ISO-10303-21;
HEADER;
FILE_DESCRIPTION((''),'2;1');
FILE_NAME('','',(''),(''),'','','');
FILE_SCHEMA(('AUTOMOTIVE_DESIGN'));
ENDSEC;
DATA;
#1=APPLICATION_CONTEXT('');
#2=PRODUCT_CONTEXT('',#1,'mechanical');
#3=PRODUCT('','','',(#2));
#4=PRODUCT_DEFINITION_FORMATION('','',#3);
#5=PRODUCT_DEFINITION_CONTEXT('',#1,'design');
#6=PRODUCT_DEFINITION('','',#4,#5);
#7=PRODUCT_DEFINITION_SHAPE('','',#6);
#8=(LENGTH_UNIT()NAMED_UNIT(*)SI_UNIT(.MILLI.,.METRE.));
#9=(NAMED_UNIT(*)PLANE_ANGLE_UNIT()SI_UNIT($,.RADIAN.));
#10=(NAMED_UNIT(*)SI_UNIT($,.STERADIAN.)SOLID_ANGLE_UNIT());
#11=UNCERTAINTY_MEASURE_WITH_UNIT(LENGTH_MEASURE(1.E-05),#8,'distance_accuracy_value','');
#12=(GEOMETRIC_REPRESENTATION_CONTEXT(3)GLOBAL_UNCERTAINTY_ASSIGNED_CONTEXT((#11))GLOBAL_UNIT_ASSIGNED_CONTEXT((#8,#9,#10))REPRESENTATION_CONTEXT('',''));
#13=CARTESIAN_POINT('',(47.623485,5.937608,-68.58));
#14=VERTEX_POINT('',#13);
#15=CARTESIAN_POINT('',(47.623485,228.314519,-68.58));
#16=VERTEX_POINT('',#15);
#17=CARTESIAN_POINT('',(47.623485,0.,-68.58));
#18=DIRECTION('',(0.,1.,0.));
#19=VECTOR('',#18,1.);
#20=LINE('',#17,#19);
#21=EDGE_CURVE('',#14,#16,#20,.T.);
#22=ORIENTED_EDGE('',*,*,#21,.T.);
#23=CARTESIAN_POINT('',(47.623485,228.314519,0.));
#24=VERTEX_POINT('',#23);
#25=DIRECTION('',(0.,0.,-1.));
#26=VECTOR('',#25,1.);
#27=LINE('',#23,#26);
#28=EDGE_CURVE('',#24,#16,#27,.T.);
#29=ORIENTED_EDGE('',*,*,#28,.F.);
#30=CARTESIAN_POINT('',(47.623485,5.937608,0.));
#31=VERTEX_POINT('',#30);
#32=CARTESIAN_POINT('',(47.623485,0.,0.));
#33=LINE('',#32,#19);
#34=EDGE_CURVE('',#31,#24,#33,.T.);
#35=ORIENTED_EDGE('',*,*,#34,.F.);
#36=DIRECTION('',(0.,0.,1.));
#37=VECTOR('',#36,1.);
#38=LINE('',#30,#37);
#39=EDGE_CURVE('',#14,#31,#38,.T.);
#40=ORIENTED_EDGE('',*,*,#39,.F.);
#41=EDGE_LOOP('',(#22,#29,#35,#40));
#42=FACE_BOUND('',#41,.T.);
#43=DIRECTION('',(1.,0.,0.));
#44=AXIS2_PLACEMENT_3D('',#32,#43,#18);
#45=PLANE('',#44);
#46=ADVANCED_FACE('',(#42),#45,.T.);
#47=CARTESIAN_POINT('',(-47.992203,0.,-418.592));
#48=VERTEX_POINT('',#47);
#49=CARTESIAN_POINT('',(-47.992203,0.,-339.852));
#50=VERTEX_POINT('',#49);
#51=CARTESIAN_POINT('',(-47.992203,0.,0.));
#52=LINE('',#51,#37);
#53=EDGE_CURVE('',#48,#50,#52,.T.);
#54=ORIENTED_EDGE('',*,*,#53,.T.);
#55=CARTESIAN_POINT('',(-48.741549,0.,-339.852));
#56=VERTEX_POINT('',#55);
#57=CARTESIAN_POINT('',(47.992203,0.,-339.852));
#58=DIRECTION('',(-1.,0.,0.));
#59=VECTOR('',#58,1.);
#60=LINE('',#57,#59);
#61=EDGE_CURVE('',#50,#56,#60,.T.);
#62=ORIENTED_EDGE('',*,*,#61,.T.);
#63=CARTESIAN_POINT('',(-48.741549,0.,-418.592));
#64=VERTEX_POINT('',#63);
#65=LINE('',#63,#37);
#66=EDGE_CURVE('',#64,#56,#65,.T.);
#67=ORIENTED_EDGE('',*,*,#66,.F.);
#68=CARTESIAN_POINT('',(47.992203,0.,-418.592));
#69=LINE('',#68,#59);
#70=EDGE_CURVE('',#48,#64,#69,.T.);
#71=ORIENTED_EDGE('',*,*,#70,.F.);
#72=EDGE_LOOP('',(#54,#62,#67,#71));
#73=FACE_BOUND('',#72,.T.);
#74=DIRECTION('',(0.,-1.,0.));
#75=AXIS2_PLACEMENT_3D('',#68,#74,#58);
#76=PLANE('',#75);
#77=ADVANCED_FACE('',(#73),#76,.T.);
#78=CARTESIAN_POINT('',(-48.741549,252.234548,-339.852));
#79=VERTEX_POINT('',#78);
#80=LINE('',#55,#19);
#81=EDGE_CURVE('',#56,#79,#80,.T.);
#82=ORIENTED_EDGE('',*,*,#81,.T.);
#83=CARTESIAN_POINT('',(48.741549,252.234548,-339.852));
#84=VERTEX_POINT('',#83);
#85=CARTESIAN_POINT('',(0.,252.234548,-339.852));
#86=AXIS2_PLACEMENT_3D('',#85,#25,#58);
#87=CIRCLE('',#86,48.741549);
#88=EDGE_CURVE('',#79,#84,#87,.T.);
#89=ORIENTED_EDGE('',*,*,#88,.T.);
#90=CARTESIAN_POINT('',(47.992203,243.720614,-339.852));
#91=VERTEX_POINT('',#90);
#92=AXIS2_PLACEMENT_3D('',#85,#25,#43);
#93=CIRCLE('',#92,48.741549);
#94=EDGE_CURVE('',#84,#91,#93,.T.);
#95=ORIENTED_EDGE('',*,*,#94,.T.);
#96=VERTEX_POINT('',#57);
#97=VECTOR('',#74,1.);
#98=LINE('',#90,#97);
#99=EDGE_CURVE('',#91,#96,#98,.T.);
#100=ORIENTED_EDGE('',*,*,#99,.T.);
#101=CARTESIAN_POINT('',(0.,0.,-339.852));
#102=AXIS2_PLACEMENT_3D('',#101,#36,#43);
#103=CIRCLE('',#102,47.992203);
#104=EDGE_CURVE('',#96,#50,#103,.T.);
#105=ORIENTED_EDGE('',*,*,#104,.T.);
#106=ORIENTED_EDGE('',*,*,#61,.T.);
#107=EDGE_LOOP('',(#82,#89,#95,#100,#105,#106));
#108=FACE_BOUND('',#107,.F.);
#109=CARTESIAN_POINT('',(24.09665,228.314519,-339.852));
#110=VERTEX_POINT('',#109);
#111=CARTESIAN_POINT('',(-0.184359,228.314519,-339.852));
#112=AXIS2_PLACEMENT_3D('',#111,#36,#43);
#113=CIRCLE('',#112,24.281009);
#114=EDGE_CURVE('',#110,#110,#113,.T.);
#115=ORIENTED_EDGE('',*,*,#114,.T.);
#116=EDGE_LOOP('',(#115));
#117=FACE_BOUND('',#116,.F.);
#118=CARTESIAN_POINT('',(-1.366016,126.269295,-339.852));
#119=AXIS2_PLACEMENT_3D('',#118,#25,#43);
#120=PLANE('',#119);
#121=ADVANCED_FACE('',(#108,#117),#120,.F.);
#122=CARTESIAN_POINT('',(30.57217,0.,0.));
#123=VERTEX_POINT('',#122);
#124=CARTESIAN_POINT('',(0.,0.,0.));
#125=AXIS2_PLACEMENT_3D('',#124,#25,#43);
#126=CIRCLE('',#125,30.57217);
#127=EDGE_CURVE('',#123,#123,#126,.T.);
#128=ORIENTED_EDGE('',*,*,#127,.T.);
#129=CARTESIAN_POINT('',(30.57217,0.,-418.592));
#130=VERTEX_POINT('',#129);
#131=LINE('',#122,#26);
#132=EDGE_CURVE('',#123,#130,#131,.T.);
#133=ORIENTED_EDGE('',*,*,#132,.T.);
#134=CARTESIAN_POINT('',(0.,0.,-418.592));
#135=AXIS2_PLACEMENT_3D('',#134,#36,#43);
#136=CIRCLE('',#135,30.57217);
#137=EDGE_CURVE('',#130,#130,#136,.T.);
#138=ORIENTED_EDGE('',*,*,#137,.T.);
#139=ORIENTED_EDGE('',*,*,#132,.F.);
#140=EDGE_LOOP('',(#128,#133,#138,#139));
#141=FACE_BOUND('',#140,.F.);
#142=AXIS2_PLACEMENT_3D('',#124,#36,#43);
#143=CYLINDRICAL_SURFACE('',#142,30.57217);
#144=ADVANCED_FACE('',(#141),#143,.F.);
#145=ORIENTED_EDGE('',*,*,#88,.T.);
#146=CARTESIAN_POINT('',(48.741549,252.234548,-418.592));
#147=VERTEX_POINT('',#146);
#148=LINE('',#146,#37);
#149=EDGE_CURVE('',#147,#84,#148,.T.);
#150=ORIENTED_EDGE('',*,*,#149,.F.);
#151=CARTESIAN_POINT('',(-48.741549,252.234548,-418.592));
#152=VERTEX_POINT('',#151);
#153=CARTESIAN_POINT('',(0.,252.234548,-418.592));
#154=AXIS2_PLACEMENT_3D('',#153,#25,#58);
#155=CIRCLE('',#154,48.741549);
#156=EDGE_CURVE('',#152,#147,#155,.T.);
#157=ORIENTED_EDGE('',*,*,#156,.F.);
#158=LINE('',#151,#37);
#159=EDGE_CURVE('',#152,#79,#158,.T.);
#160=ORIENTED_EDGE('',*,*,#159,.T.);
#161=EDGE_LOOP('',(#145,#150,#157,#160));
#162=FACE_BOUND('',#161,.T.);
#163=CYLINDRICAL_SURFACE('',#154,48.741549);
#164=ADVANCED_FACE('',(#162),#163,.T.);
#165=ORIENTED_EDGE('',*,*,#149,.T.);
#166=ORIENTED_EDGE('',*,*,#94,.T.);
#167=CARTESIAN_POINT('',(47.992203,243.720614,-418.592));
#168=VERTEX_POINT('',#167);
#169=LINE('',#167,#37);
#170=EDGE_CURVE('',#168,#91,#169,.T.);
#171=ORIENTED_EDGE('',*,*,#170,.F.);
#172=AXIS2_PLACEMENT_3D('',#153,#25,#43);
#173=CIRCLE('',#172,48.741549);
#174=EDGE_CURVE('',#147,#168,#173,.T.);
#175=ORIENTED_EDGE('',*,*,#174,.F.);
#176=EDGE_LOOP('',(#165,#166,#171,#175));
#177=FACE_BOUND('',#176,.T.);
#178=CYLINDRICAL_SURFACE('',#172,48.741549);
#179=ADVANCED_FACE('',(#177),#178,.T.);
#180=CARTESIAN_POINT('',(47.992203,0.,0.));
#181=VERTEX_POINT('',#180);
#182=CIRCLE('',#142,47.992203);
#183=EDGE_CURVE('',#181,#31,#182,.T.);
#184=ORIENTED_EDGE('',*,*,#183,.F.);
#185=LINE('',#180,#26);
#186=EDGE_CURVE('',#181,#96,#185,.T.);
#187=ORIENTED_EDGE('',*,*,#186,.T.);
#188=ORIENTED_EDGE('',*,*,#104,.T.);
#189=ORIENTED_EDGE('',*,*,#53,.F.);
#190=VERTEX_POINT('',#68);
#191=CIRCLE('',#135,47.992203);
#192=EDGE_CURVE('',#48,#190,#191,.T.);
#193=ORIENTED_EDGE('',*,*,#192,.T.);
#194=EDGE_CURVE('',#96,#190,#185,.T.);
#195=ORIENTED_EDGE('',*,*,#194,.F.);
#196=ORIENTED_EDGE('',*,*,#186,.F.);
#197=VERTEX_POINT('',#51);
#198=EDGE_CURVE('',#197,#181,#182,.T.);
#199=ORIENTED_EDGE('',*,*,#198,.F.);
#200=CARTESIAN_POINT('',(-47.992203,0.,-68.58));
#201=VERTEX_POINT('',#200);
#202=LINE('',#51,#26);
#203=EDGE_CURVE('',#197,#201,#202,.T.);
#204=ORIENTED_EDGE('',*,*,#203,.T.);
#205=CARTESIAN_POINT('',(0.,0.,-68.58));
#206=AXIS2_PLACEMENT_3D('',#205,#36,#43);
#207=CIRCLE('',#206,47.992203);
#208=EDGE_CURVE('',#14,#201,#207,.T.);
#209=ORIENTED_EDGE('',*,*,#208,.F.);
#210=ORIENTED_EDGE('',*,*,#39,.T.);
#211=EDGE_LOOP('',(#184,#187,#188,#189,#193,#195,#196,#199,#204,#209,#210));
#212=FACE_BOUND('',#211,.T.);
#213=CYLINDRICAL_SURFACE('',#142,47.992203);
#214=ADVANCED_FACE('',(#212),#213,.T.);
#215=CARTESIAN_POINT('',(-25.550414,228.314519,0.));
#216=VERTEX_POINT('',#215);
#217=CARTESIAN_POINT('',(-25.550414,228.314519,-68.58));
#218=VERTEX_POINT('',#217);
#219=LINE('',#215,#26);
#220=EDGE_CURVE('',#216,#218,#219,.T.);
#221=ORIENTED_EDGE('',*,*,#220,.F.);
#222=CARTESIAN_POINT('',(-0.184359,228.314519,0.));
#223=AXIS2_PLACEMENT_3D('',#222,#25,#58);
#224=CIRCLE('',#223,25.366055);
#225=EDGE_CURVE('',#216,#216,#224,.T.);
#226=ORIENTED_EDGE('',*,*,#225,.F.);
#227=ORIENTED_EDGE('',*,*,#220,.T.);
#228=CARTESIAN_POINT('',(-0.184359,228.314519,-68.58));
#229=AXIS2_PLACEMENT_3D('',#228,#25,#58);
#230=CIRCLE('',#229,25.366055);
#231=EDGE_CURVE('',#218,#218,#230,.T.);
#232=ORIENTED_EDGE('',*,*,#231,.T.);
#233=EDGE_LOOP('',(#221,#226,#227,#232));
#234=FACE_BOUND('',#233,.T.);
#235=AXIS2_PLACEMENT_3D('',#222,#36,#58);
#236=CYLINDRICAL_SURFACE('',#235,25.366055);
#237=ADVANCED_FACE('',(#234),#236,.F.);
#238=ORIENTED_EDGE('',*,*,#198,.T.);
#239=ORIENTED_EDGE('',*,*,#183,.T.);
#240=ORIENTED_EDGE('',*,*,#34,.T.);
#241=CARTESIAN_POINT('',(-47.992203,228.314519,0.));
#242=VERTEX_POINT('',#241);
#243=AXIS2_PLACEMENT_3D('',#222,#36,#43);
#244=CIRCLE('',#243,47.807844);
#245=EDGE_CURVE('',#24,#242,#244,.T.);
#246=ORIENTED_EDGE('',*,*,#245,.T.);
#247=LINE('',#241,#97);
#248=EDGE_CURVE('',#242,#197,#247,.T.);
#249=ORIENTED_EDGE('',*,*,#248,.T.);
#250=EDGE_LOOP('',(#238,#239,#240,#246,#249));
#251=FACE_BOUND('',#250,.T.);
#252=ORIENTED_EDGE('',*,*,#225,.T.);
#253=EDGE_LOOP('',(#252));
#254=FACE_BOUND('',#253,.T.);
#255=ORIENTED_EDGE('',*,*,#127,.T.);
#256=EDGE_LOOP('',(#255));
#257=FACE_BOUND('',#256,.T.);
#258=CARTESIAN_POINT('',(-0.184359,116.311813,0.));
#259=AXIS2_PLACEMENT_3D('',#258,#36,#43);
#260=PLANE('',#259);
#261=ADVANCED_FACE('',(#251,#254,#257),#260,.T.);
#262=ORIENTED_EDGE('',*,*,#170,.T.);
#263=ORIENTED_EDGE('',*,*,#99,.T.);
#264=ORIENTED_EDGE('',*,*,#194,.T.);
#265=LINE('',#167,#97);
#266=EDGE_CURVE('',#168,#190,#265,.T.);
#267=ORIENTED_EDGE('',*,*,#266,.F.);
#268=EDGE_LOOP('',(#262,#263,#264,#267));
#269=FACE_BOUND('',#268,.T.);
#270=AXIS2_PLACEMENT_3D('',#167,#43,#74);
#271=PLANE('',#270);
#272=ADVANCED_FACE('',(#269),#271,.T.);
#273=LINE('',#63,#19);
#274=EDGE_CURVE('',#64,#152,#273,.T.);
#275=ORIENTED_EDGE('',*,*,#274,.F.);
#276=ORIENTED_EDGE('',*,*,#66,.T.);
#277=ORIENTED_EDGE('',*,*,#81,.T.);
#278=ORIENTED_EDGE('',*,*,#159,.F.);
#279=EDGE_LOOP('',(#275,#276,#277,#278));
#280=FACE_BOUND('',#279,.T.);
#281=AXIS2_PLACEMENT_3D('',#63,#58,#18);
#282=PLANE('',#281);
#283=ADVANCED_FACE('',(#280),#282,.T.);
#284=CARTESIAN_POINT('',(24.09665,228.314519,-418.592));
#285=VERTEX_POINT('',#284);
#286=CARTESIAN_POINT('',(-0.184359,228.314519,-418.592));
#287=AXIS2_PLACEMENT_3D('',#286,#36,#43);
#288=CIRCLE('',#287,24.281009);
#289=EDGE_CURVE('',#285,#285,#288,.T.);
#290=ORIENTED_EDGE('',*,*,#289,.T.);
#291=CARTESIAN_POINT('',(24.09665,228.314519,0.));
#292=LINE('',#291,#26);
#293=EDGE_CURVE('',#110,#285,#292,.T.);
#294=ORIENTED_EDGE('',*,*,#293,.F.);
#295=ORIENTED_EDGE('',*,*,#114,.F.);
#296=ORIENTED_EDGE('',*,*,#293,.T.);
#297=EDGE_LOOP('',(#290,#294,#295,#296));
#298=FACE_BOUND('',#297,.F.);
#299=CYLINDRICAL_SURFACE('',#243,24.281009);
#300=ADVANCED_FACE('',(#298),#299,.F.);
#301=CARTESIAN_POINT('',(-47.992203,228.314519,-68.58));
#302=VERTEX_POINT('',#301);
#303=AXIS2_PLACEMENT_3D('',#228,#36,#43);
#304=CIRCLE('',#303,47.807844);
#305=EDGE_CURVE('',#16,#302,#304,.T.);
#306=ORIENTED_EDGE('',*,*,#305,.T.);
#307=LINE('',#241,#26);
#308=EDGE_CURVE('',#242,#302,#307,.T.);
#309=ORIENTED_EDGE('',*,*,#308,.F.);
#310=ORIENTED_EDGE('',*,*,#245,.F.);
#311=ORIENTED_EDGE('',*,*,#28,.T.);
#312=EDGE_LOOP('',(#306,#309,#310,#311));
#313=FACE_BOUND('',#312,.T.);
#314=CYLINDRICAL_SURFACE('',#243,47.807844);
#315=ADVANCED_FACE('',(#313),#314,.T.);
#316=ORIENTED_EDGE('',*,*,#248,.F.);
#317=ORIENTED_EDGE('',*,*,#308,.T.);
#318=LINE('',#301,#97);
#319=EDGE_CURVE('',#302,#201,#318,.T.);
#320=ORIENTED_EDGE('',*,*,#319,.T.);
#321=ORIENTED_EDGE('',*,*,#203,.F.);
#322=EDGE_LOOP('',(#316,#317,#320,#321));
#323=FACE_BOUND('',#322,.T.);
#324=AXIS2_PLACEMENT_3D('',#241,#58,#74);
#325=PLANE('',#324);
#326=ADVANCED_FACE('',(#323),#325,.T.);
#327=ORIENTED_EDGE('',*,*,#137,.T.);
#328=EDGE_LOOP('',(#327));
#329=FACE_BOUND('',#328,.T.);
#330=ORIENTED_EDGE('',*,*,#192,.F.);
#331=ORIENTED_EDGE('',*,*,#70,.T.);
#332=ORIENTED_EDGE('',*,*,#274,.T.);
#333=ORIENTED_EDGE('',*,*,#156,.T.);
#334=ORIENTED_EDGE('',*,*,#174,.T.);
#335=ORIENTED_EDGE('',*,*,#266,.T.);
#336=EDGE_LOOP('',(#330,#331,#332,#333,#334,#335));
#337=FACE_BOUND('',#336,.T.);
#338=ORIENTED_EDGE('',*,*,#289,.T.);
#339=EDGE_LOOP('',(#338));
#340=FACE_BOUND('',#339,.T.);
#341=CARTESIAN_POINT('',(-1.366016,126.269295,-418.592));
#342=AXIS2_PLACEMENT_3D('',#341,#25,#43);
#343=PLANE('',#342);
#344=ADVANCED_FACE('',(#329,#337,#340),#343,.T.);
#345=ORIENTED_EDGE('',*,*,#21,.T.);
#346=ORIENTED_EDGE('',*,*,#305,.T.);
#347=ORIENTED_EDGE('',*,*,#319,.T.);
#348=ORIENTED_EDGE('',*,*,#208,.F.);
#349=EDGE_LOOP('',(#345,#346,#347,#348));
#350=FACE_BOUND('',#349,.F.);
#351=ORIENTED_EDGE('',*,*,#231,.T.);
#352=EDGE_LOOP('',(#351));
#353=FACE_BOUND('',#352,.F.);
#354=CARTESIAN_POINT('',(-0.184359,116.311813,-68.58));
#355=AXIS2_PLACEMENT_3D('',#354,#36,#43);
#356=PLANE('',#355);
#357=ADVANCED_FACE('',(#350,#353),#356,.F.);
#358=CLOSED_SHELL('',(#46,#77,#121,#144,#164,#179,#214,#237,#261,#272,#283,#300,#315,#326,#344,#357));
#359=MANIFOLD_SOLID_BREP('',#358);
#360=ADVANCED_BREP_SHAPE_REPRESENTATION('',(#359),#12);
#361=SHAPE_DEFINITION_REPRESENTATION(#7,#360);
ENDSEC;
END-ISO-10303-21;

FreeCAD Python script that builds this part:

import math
import FreeCAD as App
import Part
import Sketcher
from FreeCAD import Vector
Q = App.Units.Quantity

doc = App.newDocument("Part")
body = doc.addObject("PartDesign::Body", "Body")

# Sketch on XY plane
sketch1 = body.newObject("Sketcher::SketchObject", "Sketch")
sketch1.AttachmentSupport = (doc.getObject("XY_Plane"), [""])
sketch1.MapMode = "FlatFace"
sketch1.addGeometry(Part.Circle(Vector(0, 0, 0), Vector(0, 0, 1), 47.992203), False)
sketch1.addGeometry(Part.Circle(Vector(0, 0, 0), Vector(0, 0, 1), 30.57217), False)
sketch1.addConstraint(Sketcher.Constraint("Coincident", 0, 3, -1, 1))
sketch1.addConstraint(Sketcher.Constraint("Coincident", 1, 3, -1, 1))
sketch1.addConstraint(Sketcher.Constraint("Diameter", 1, Q("61.144341 mm")))
sketch1.addConstraint(Sketcher.Constraint("Diameter", 0, Q("95.984406 mm")))
pad1 = body.newObject("PartDesign::Pad", "Pad")
pad1.Profile = sketch1
pad1.Length = Q("16.48 in")
pad1.Reversed = True

# Sketch on XY plane
sketch2 = body.newObject("Sketcher::SketchObject", "Sketch001")
sketch2.AttachmentSupport = (doc.getObject("XY_Plane"), [""])
sketch2.MapMode = "FlatFace"
sketch2.addGeometry(Part.LineSegment(Vector(-47.992203, 228.314519, 0), Vector(-47.992203, 0, 0)), False)
sketch2.addGeometry(Part.LineSegment(Vector(-47.992203, 0, 0), Vector(47.623485, 0, 0)), False)
sketch2.addGeometry(Part.LineSegment(Vector(47.623485, 0, 0), Vector(47.623485, 228.314519, 0)), False)
sketch2.addGeometry(Part.ArcOfCircle(Part.Circle(Vector(-0.184359, 228.314519, 0), Vector(0, 0, 1), 47.807844), math.radians(0), math.radians(180)), False)
sketch2.addGeometry(Part.Circle(Vector(-0.184359, 228.314519, 0), Vector(0, 0, 1), 25.366055), False)
sketch2.addConstraint(Sketcher.Constraint("Coincident", 0, 2, 1, 1))
sketch2.addConstraint(Sketcher.Constraint("Coincident", 1, 2, 2, 1))
sketch2.addConstraint(Sketcher.Constraint("Tangent", 2, 2, 3, 1))
sketch2.addConstraint(Sketcher.Constraint("Tangent", 3, 2, 0, 1))
sketch2.addConstraint(Sketcher.Constraint("Vertical", 0))
sketch2.addConstraint(Sketcher.Constraint("Horizontal", 1))
sketch2.addConstraint(Sketcher.Constraint("Vertical", 2))
sketch2.addConstraint(Sketcher.Constraint("Coincident", 4, 3, 3, 3))
sketch2.addConstraint(Sketcher.Constraint("PointOnObject", 0, 2, -1))
sketch2.addConstraint(Sketcher.Constraint("Diameter", 4, Q("50.73211 mm")))
sketch2.addConstraint(Sketcher.Constraint("Radius", 3, Q("47.807844 mm")))
sketch2.addConstraint(Sketcher.Constraint("DistanceY", 0, 2, 0, 1, Q("228.314519 mm")))
sketch2.addConstraint(Sketcher.Constraint("DistanceX", 3, 3, -1, 1, Q("0.184359 mm")))
pad2 = body.newObject("PartDesign::Pad", "Pad001")
pad2.Profile = sketch2
pad2.Length = Q("2.7 in")
pad2.Reversed = True

# Sketch on XY plane
sketch3 = body.newObject("Sketcher::SketchObject", "Sketch002")
sketch3.AttachmentSupport = (doc.getObject("XY_Plane"), [""])
sketch3.MapMode = "FlatFace"
sketch3.AttachmentOffset = App.Placement(Vector(0, 0, -16.48 * 25.4), App.Rotation())
sketch3.addGeometry(Part.LineSegment(Vector(47.992203, 243.720614, 0), Vector(47.992203, 0, 0)), False)
sketch3.addGeometry(Part.LineSegment(Vector(47.992203, 0, 0), Vector(-48.741549, 0, 0)), False)
sketch3.addGeometry(Part.LineSegment(Vector(-48.741549, 0, 0), Vector(-48.741549, 252.234548, 0)), False)
sketch3.addGeometry(Part.ArcOfCircle(Part.Circle(Vector(0, 252.234548, 0), Vector(0, 0, 1), 48.741549), math.radians(0), math.radians(180)), False)
sketch3.addGeometry(Part.ArcOfCircle(Part.Circle(Vector(0, 252.234548, 0), Vector(0, 0, 1), 48.741549), math.radians(-10.059751), math.radians(0)), False)
sketch3.addConstraint(Sketcher.Constraint("Coincident", 0, 2, 1, 1))
sketch3.addConstraint(Sketcher.Constraint("Coincident", 1, 2, 2, 1))
sketch3.addConstraint(Sketcher.Constraint("Tangent", 2, 2, 3, 2))
sketch3.addConstraint(Sketcher.Constraint("Tangent", 3, 1, 4, 2))
sketch3.addConstraint(Sketcher.Constraint("Coincident", 4, 1, 0, 1))
sketch3.addConstraint(Sketcher.Constraint("Vertical", 0))
sketch3.addConstraint(Sketcher.Constraint("Horizontal", 1))
sketch3.addConstraint(Sketcher.Constraint("Vertical", 2))
sketch3.addConstraint(Sketcher.Constraint("Equal", 3, 4))
sketch3.addConstraint(Sketcher.Constraint("Symmetric", 2, 2, 3, 1, -2))
sketch3.addConstraint(Sketcher.Constraint("PointOnObject", 0, 2, -1))
sketch3.addConstraint(Sketcher.Constraint("Radius", 3, Q("48.741549 mm")))
sketch3.addConstraint(Sketcher.Constraint("DistanceY", 2, 1, 2, 2, Q("252.234548 mm")))
sketch3.addConstraint(Sketcher.Constraint("DistanceX", 1, 2, 1, 1, Q("96.733752 mm")))
pad3 = body.newObject("PartDesign::Pad", "Pad002")
pad3.Profile = sketch3
pad3.Length = Q("3.1 in")

# Sketch on XY plane
sketch4 = body.newObject("Sketcher::SketchObject", "Sketch003")
sketch4.AttachmentSupport = (doc.getObject("XY_Plane"), [""])
sketch4.MapMode = "FlatFace"
sketch4.addGeometry(Part.Circle(Vector(0, 0, 0), Vector(0, 0, 1), 30.57217), False)
sketch4.addGeometry(Part.Circle(Vector(-0.184359, 228.314519, 0), Vector(0, 0, 1), 24.281009), False)
sketch4.addConstraint(Sketcher.Constraint("Coincident", 0, 3, -1, 1))
sketch4.addConstraint(Sketcher.Constraint("Diameter", 0, Q("61.144341 mm")))
sketch4.addConstraint(Sketcher.Constraint("Diameter", 1, Q("48.562018 mm")))
sketch4.addConstraint(Sketcher.Constraint("DistanceX", 1, 3, -1, 1, Q("0.184359 mm")))
sketch4.addConstraint(Sketcher.Constraint("DistanceY", -1, 1, 1, 3, Q("228.314519 mm")))
pocket1 = body.newObject("PartDesign::Pocket", "Pocket")
pocket1.Profile = sketch4
pocket1.Length = Q("19.5 in")

doc.recompute()
